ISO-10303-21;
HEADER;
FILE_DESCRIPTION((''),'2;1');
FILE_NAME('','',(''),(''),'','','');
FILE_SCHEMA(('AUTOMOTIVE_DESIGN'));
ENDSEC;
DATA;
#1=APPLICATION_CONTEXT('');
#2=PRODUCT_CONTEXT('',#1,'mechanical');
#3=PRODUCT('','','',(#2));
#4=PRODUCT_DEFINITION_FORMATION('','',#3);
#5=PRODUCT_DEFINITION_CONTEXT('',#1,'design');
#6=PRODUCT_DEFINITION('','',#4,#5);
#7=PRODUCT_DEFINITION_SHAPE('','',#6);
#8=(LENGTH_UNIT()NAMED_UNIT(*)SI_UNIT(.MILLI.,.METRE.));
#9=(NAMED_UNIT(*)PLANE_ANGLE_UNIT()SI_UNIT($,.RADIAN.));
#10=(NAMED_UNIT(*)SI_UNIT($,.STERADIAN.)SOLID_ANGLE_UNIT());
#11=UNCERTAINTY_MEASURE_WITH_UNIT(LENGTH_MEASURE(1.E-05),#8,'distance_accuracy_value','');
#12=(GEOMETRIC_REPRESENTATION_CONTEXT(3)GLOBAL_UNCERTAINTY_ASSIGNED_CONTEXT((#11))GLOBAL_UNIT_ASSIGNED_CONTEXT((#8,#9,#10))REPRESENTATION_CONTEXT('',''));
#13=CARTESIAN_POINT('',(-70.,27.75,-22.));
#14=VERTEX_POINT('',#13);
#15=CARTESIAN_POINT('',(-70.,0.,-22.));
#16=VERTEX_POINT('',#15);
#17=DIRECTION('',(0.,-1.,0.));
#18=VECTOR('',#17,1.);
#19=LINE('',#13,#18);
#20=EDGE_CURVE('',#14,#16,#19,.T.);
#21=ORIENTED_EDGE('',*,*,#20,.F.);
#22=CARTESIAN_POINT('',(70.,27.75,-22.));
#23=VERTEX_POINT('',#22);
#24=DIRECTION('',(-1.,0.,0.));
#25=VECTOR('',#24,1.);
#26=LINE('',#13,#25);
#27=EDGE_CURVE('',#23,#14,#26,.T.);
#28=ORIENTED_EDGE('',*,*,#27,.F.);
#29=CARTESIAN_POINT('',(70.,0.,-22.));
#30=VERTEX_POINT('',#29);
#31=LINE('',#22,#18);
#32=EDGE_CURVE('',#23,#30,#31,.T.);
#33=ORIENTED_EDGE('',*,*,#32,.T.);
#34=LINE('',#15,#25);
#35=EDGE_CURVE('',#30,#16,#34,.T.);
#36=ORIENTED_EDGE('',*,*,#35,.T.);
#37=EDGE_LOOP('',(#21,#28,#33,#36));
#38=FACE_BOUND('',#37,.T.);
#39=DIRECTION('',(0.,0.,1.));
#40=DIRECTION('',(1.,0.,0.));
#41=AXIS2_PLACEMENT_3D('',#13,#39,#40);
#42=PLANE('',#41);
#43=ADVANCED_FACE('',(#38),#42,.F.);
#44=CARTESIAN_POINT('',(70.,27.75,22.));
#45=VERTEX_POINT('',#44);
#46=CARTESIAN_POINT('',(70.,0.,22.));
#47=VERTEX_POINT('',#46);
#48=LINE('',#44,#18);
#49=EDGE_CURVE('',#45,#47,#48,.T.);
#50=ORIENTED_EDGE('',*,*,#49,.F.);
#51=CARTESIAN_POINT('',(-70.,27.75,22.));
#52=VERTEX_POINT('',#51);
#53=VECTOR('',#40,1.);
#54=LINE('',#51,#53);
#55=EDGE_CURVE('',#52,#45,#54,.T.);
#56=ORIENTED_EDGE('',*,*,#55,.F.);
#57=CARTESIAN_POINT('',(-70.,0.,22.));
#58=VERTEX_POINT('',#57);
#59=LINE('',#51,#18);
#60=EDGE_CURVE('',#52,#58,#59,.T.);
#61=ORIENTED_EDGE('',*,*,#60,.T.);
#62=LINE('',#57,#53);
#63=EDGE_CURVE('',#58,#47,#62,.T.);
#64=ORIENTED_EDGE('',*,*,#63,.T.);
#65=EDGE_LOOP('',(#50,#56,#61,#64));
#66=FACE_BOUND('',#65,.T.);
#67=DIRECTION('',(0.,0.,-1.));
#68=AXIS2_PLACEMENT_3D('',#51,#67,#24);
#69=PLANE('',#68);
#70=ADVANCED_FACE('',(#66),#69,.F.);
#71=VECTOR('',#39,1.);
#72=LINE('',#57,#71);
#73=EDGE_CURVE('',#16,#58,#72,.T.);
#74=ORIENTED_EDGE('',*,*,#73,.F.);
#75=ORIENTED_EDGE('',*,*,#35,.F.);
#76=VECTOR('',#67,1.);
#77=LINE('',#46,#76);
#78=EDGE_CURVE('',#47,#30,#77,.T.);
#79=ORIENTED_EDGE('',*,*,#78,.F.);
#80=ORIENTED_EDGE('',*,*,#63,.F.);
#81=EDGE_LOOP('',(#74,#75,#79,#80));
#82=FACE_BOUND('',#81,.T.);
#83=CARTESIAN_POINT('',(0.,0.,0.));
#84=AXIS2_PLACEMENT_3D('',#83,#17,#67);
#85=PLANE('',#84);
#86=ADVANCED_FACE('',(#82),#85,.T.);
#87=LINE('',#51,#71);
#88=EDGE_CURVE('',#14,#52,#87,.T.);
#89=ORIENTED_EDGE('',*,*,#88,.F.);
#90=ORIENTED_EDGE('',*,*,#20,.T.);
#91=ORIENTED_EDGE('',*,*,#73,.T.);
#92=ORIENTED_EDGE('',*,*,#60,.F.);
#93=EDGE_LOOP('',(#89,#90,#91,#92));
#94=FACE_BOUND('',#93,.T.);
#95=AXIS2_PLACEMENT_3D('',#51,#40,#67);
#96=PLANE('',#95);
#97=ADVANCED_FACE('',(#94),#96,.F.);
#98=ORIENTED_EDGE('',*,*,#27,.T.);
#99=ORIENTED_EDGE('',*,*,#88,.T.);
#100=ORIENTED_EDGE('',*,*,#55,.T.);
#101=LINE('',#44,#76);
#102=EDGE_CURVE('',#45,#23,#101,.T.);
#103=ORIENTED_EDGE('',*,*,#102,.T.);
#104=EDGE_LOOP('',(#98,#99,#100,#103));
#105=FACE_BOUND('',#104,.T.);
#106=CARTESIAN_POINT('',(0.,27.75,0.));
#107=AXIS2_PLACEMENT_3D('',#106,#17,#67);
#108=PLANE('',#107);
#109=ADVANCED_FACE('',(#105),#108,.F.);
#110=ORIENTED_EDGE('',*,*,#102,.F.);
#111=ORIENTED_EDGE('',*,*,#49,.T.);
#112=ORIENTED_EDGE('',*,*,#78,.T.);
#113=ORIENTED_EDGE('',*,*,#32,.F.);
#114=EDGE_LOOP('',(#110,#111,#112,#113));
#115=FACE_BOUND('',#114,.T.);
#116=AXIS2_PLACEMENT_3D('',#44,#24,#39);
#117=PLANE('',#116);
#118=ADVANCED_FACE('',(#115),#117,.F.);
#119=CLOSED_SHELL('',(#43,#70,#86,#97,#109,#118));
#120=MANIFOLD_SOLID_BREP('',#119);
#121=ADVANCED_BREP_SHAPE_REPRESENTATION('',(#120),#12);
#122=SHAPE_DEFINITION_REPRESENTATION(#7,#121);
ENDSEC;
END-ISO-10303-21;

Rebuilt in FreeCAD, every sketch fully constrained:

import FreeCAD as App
import Part
import Sketcher


def add_polygon(sketch, points):
    """Adds a closed chain of lines whose ends are joined by coincident constraints."""
    first, n = sketch.GeometryCount, len(points)
    for a, b in zip(points, points[1:] + points[:1]):
        sketch.addGeometry(Part.LineSegment(App.Vector(*a, 0), App.Vector(*b, 0)), False)
    for i in range(n):
        sketch.addConstraint(Sketcher.Constraint("Coincident", first + i, 2, first + (i + 1) % n, 1))

doc = App.newDocument("Part")
body = doc.addObject("PartDesign::Body", "Body")

# Sketch on XZ plane
sketch1 = doc.addObject("Sketcher::SketchObject", "Sketch")
body.addObject(sketch1)
sketch1.AttachmentSupport = (doc.XZ_Plane, [""])
sketch1.MapMode = "FlatFace"
add_polygon(sketch1, [(-70, -22), (-70, 22), (70, 22), (70, -22)])  # lines 0-3
sketch1.addConstraint([
    Sketcher.Constraint("Vertical", 0),
    Sketcher.Constraint("Horizontal", 1),
    Sketcher.Constraint("Vertical", 2),
    Sketcher.Constraint("Horizontal", 3),
    Sketcher.Constraint("Symmetric", 0, 2, 2, 2, -1, 1),
    Sketcher.Constraint("DistanceX", 1, 1, 1, 2, 140.0),
    Sketcher.Constraint("DistanceY", 0, 1, 0, 2, 44.0),
])
pad1 = doc.addObject("PartDesign::Pad", "Pad")
body.addObject(pad1)
pad1.Profile = sketch1
pad1.Length = 27.75
pad1.Reversed = True

doc.recompute()
